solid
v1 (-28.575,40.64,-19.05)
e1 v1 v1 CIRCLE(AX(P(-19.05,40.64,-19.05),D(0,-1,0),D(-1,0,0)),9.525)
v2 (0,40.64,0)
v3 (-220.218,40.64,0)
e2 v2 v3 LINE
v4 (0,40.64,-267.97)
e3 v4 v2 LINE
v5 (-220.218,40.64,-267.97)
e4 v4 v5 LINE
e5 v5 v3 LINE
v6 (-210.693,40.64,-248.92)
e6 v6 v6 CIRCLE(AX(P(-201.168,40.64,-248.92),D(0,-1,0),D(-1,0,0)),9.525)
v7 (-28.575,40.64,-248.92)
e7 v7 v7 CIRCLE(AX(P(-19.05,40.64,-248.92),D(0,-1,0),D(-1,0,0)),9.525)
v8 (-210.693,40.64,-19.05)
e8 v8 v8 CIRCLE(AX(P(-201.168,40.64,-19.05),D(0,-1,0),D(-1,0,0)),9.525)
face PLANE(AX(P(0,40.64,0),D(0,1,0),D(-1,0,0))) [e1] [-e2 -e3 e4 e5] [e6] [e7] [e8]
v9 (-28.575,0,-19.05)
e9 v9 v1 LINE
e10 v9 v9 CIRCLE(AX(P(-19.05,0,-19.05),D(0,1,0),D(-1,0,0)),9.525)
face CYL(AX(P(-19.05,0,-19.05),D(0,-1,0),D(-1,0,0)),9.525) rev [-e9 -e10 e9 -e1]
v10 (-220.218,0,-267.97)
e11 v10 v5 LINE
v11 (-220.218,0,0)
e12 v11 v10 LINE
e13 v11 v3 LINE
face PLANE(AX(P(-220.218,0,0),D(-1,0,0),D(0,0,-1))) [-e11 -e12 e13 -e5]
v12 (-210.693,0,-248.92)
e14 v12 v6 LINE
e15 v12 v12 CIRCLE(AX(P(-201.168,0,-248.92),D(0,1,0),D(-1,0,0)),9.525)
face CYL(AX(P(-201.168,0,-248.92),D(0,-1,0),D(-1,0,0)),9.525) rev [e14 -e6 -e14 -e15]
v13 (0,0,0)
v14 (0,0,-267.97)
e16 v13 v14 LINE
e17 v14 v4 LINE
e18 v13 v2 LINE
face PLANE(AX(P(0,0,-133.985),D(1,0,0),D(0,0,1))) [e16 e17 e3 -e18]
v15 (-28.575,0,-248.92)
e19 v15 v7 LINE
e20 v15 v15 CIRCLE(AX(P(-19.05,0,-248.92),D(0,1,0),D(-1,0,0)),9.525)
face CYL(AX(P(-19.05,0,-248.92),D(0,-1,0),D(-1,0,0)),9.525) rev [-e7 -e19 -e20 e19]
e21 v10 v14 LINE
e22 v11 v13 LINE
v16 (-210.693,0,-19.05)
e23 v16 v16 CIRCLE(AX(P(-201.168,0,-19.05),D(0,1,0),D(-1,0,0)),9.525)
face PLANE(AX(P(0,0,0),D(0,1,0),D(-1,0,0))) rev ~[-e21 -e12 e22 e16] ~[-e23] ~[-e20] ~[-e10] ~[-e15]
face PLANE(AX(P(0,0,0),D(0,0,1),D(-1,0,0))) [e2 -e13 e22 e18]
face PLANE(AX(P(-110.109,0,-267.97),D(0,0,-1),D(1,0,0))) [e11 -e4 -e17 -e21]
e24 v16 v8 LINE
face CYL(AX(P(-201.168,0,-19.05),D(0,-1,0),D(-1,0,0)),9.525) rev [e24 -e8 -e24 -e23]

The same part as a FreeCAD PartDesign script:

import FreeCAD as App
import Part
import Sketcher
from FreeCAD import Vector
Q = App.Units.Quantity

doc = App.newDocument("Part")
body = doc.addObject("PartDesign::Body", "Body")

# Sketch on XZ plane
sketch1 = body.newObject("Sketcher::SketchObject", "Sketch")
sketch1.AttachmentSupport = (doc.getObject("XZ_Plane"), [""])
sketch1.MapMode = "FlatFace"
sketch1.addGeometry([
    Part.LineSegment(Vector(0, 0, 0), Vector(0, -268, 0)),
    Part.LineSegment(Vector(0, -268, 0), Vector(-220, -268, 0)),
    Part.LineSegment(Vector(-220, -268, 0), Vector(-220, 0, 0)),
    Part.LineSegment(Vector(-220, 0, 0), Vector(0, 0, 0)),
], False)
sketch1.addConstraint([
    Sketcher.Constraint("Coincident", 0, 2, 1, 1),
    Sketcher.Constraint("Coincident", 1, 2, 2, 1),
    Sketcher.Constraint("Coincident", 2, 2, 3, 1),
    Sketcher.Constraint("Coincident", 3, 2, 0, 1),
    Sketcher.Constraint("Vertical", 0),
    Sketcher.Constraint("Horizontal", 1),
    Sketcher.Constraint("Vertical", 2),
    Sketcher.Constraint("Horizontal", 3),
    Sketcher.Constraint("Coincident", 3, 2, -1, 1),
    Sketcher.Constraint("DistanceX", 1, 2, 1, 1, Q("8.67 in")),
    Sketcher.Constraint("DistanceY", 0, 2, 0, 1, Q("10.55 in")),
])
pad1 = body.newObject("PartDesign::Pad", "Pad")
pad1.Profile = sketch1
pad1.Length = Q("1.6 in")
pad1.Reversed = True

# Sketch on XZ plane
sketch2 = body.newObject("Sketcher::SketchObject", "Sketch001")
sketch2.AttachmentSupport = (doc.getObject("XZ_Plane"), [""])
sketch2.MapMode = "FlatFace"
sketch2.addGeometry([
    Part.Circle(Vector(-19, -19, 0), Vector(0, 0, 1), 10),
    Part.Circle(Vector(-201, -19, 0), Vector(0, 0, 1), 10),
    Part.Circle(Vector(-19, -249, 0), Vector(0, 0, 1), 10),
    Part.Circle(Vector(-201, -249, 0), Vector(0, 0, 1), 10),
], False)
sketch2.addConstraint([
    Sketcher.Constraint("Equal", 0, 1),
    Sketcher.Constraint("Equal", 1, 2),
    Sketcher.Constraint("Equal", 2, 3),
    Sketcher.Constraint("Horizontal", 0, 3, 1, 3),
    Sketcher.Constraint("Horizontal", 2, 3, 3, 3),
    Sketcher.Constraint("Vertical", 0, 3, 2, 3),
    Sketcher.Constraint("Vertical", 1, 3, 3, 3),
    Sketcher.Constraint("Diameter", 0, Q("0.75 in")),
    Sketcher.Constraint("DistanceY", 2, 3, -1, 1, Q("9.8 in")),
    Sketcher.Constraint("DistanceX", 0, 3, -1, 1, Q("0.75 in")),
    Sketcher.Constraint("DistanceY", 0, 3, -1, 1, Q("0.75 in")),
    Sketcher.Constraint("DistanceX", 1, 3, -1, 1, Q("7.92 in")),
])
pocket1 = body.newObject("PartDesign::Pocket", "Pocket")
pocket1.Profile = sketch2
pocket1.Length = Q("3.4375 in")

doc.recompute()
